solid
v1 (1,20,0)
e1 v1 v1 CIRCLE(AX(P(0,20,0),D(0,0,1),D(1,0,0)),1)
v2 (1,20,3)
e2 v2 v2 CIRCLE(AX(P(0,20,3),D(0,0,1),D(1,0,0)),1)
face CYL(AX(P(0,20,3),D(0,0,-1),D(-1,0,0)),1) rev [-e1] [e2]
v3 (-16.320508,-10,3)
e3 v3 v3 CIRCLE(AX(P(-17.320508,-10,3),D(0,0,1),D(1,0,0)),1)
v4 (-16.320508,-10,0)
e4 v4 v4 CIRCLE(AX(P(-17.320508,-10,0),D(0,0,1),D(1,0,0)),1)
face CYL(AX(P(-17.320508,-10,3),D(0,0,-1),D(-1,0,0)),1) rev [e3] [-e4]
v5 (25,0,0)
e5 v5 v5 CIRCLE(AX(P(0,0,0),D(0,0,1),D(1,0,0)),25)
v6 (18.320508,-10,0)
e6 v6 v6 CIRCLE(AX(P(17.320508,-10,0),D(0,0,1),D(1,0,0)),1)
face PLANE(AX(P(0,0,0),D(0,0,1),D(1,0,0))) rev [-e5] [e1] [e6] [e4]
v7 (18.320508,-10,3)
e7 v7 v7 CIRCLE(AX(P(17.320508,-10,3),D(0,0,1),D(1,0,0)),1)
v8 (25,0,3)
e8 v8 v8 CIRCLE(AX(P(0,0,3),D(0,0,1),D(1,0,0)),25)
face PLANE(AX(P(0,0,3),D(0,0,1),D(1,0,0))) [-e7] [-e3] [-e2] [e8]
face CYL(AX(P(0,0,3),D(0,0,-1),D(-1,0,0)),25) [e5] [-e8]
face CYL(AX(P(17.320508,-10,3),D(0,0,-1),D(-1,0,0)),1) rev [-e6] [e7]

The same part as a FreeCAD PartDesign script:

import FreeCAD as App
import Part
import Sketcher
from FreeCAD import Vector

doc = App.newDocument("Part")
body = doc.addObject("PartDesign::Body", "Body")

sketch1 = doc.addObject("Sketcher::SketchObject", "Sketch")
body.addObject(sketch1)
sketch1.AttachmentSupport = (doc.XY_Plane, [""])
sketch1.MapMode = "FlatFace"
sketch1.addGeometry(Part.Circle(Vector(0, 0, 0), Vector(0, 0, 1), 25), False)
sketch1.addGeometry(Part.Circle(Vector(-17.320508, -10, 0), Vector(0, 0, 1), 1), False)
sketch1.addGeometry(Part.Circle(Vector(17.320508, -10, 0), Vector(0, 0, 1), 1), False)
sketch1.addGeometry(Part.Circle(Vector(0, 20, 0), Vector(0, 0, 1), 1), False)
sketch1.addConstraint(Sketcher.Constraint("Coincident", 0, 3, -1, 1))
sketch1.addConstraint(Sketcher.Constraint("Equal", 1, 2))
sketch1.addConstraint(Sketcher.Constraint("Equal", 2, 3))
sketch1.addConstraint(Sketcher.Constraint("Symmetric", 1, 3, 2, 3, -2))
sketch1.addConstraint(Sketcher.Constraint("PointOnObject", 3, 3, -2))
sketch1.addConstraint(Sketcher.Constraint("Diameter", 0, 50.0))
sketch1.addConstraint(Sketcher.Constraint("Diameter", 1, 2.0))
sketch1.addConstraint(Sketcher.Constraint("DistanceY", 1, 3, -1, 1, 10.0))
sketch1.addConstraint(Sketcher.Constraint("DistanceY", -1, 1, 3, 3, 20.0))
sketch1.addConstraint(Sketcher.Constraint("DistanceX", 1, 3, -1, 1, 17.320508))
pad1 = doc.addObject("PartDesign::Pad", "Pad")
body.addObject(pad1)
pad1.Profile = sketch1
pad1.Length = 3

doc.recompute()
